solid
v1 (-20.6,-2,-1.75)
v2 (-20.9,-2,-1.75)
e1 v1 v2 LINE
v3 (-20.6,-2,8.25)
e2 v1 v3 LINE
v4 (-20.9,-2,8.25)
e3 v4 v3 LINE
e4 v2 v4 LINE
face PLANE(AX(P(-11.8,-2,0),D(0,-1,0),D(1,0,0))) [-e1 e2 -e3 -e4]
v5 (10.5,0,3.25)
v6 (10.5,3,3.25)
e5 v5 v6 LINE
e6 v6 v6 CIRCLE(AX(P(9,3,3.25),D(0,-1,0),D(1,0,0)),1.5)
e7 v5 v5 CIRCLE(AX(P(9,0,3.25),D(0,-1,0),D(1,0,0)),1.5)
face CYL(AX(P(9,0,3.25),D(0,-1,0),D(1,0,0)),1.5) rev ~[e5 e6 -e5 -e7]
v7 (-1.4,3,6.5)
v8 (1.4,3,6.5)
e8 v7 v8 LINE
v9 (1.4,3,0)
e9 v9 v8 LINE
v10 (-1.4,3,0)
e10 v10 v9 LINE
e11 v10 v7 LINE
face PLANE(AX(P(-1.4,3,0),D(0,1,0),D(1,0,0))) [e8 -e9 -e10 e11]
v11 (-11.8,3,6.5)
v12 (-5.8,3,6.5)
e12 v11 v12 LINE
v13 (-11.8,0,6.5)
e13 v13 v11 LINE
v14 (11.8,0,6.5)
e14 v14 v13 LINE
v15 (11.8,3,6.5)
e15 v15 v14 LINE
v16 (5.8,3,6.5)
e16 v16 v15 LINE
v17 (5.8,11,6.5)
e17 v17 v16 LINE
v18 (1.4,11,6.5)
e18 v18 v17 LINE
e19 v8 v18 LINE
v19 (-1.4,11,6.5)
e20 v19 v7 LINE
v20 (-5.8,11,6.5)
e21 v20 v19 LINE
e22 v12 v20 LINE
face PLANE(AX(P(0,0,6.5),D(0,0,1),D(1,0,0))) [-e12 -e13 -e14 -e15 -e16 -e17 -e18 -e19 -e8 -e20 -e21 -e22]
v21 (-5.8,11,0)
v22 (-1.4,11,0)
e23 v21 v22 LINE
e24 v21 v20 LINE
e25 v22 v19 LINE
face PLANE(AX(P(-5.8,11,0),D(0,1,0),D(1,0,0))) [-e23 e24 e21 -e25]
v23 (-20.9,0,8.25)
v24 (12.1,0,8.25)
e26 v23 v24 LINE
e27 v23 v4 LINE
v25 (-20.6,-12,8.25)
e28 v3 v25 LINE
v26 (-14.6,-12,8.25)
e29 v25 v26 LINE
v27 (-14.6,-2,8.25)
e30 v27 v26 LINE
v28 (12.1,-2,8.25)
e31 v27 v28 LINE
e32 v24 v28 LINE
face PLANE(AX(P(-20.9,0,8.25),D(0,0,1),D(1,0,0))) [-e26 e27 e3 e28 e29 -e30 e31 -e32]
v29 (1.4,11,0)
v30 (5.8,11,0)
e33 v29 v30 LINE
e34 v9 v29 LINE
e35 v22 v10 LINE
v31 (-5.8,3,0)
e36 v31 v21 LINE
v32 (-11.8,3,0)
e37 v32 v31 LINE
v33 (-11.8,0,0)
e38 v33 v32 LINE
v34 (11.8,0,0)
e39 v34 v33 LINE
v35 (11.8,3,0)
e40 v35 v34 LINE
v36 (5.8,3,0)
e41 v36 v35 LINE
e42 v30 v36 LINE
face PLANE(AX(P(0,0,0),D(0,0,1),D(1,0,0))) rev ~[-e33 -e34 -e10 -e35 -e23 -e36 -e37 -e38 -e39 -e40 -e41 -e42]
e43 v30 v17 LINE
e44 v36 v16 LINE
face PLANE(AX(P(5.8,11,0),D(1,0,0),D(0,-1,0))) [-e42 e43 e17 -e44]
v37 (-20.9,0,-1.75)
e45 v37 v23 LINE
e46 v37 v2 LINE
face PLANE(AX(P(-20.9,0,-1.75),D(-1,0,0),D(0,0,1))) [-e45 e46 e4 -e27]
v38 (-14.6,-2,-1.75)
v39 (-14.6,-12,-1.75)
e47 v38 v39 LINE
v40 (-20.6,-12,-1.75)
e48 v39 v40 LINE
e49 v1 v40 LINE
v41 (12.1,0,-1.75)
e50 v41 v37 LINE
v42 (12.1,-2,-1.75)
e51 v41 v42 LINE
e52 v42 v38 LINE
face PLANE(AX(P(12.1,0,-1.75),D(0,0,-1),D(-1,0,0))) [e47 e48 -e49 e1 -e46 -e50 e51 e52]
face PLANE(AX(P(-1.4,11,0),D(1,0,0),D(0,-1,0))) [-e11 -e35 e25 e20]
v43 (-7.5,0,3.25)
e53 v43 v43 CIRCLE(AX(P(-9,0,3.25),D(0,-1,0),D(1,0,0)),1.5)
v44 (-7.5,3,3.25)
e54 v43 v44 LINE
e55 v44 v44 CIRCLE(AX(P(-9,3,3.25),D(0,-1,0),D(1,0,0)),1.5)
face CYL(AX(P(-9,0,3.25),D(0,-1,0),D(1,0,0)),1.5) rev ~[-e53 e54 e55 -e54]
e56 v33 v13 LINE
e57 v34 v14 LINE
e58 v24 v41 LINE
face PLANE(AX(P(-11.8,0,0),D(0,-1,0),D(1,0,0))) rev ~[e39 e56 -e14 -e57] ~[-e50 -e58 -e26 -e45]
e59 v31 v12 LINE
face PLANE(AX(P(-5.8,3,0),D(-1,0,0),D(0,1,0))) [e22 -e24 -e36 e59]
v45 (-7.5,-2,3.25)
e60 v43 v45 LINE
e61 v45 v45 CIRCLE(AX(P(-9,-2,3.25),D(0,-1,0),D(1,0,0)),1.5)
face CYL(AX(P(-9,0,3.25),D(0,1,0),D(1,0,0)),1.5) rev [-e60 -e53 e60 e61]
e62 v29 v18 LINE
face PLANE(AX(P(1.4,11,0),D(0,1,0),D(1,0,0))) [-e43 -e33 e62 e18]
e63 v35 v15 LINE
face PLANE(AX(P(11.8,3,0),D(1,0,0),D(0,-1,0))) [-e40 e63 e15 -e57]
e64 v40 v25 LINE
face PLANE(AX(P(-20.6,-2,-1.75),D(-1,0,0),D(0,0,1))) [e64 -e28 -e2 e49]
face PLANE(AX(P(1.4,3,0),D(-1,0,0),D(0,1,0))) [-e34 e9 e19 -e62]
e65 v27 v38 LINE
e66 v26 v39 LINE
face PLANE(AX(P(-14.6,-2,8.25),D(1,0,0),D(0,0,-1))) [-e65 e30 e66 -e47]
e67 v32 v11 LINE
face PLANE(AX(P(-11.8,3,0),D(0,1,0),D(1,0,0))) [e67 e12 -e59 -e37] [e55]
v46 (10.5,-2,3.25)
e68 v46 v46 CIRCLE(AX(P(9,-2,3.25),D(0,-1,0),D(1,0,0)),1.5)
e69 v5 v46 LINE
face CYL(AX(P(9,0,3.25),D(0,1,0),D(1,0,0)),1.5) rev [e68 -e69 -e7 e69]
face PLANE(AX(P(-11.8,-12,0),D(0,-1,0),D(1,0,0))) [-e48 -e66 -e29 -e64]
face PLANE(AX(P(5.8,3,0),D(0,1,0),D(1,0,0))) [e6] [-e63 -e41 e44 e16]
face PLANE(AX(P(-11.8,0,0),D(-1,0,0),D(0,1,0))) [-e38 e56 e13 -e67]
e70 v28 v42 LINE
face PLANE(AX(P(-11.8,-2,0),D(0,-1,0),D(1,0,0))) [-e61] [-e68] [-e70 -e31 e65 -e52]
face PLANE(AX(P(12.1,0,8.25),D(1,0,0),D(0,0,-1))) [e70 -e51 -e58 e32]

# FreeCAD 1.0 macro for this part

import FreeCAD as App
import Part
import Sketcher

doc = App.newDocument("Part")
params = doc.addObject("Spreadsheet::Sheet", "Params")
for row, (alias, value) in enumerate([
    ("sketch1_width", "6 mm"),
    ("sketch1_height", "3 mm"),
    ("sketch1_height2", "8 mm"),
    ("sketch1_width2", "4.4 mm"),
    ("sketch1_width3", "2.8 mm"),
    ("pad1_length", "6.5 mm"),
    ("sketch2_diameter", "3 mm"),
    ("sketch3_width", "33 mm"),
    ("sketch3_height", "10 mm"),
    ("sketch3_diameter", "3 mm"),
    ("pad2_length", "2 mm"),
    ("sketch4_width", "6 mm"),
    ("sketch4_height", "10 mm"),
    ("pad3_length", "10 mm"),
], start=1):
    params.set(f"A{row}", alias)
    params.set(f"B{row}", "=" + value)
    params.setAlias(f"B{row}", alias)

body = doc.addObject("PartDesign::Body", "Body")

# Sketch on XY plane
sketch1 = doc.addObject("Sketcher::SketchObject", "Sketch")
body.addObject(sketch1)
sketch1.AttachmentSupport = (doc.XY_Plane, [""])
sketch1.MapMode = "FlatFace"
sketch1.addGeometry([
    Part.LineSegment(App.Vector(-11.8, 3, 0), App.Vector(-11.8, 0, 0)),  # 0
    Part.LineSegment(App.Vector(-11.8, 0, 0), App.Vector(11.8, 0, 0)),  # 1
    Part.LineSegment(App.Vector(11.8, 0, 0), App.Vector(11.8, 3, 0)),  # 2
    Part.LineSegment(App.Vector(11.8, 3, 0), App.Vector(5.8, 3, 0)),  # 3
    Part.LineSegment(App.Vector(5.8, 3, 0), App.Vector(5.8, 11, 0)),  # 4
    Part.LineSegment(App.Vector(5.8, 11, 0), App.Vector(1.4, 11, 0)),  # 5
    Part.LineSegment(App.Vector(1.4, 11, 0), App.Vector(1.4, 3, 0)),  # 6
    Part.LineSegment(App.Vector(1.4, 3, 0), App.Vector(-1.4, 3, 0)),  # 7
    Part.LineSegment(App.Vector(-1.4, 3, 0), App.Vector(-1.4, 11, 0)),  # 8
    Part.LineSegment(App.Vector(-1.4, 11, 0), App.Vector(-5.8, 11, 0)),  # 9
    Part.LineSegment(App.Vector(-5.8, 11, 0), App.Vector(-5.8, 3, 0)),  # 10
    Part.LineSegment(App.Vector(-5.8, 3, 0), App.Vector(-11.8, 3, 0)),  # 11
], False)
sketch1.addConstraint([
    Sketcher.Constraint("Coincident", 0, 2, 1, 1),
    Sketcher.Constraint("Coincident", 1, 2, 2, 1),
    Sketcher.Constraint("Coincident", 2, 2, 3, 1),
    Sketcher.Constraint("Coincident", 3, 2, 4, 1),
    Sketcher.Constraint("Coincident", 4, 2, 5, 1),
    Sketcher.Constraint("Coincident", 5, 2, 6, 1),
    Sketcher.Constraint("Coincident", 6, 2, 7, 1),
    Sketcher.Constraint("Coincident", 7, 2, 8, 1),
    Sketcher.Constraint("Coincident", 8, 2, 9, 1),
    Sketcher.Constraint("Coincident", 9, 2, 10, 1),
    Sketcher.Constraint("Coincident", 10, 2, 11, 1),
    Sketcher.Constraint("Coincident", 11, 2, 0, 1),
    Sketcher.Constraint("Vertical", 0),
    Sketcher.Constraint("Horizontal", 1),
    Sketcher.Constraint("Vertical", 2),
    Sketcher.Constraint("Horizontal", 3),
    Sketcher.Constraint("Vertical", 4),
    Sketcher.Constraint("Horizontal", 5),
    Sketcher.Constraint("Vertical", 6),
    Sketcher.Constraint("Horizontal", 7),
    Sketcher.Constraint("Vertical", 8),
    Sketcher.Constraint("Horizontal", 9),
    Sketcher.Constraint("Vertical", 10),
    Sketcher.Constraint("Horizontal", 11),
    Sketcher.Constraint("Symmetric", 0, 2, 1, 2, -1, 1),
    Sketcher.Constraint("Symmetric", 5, 2, 8, 2, -2),
    Sketcher.Constraint("Symmetric", 3, 2, 10, 2, -2),
    Sketcher.Constraint("Horizontal", 3, 2, 6, 2),
    Sketcher.Constraint("DistanceX", 3, 2, 3, 1, 6.0),
    Sketcher.Constraint("DistanceY", 0, 2, 0, 1, 3.0),
    Sketcher.Constraint("DistanceY", 4, 1, 4, 2, 8.0),
    Sketcher.Constraint("DistanceX", 5, 2, 5, 1, 4.4),
    Sketcher.Constraint("DistanceX", 7, 2, 7, 1, 2.8),
])
sketch1.setExpression("Constraints[28]", "Params.sketch1_width")
sketch1.setExpression("Constraints[29]", "Params.sketch1_height")
sketch1.setExpression("Constraints[30]", "Params.sketch1_height2")
sketch1.setExpression("Constraints[31]", "Params.sketch1_width2")
sketch1.setExpression("Constraints[32]", "Params.sketch1_width3")
pad1 = doc.addObject("PartDesign::Pad", "Pad")
body.addObject(pad1)
pad1.Profile = sketch1
pad1.setExpression("Length", "Params.pad1_length")

# Sketch on XZ plane
sketch2 = doc.addObject("Sketcher::SketchObject", "Sketch001")
body.addObject(sketch2)
sketch2.AttachmentSupport = (doc.XZ_Plane, [""])
sketch2.MapMode = "FlatFace"
sketch2.addGeometry([
    Part.Circle(App.Vector(-9, 3.2, 0), App.Vector(0, 0, 1), 1.5),
    Part.Circle(App.Vector(9, 3.2, 0), App.Vector(0, 0, 1), 1.5),
], False)
sketch2.addConstraint([
    Sketcher.Constraint("Equal", 0, 1),
    Sketcher.Constraint("Symmetric", 0, 3, 1, 3, -2),
    Sketcher.Constraint("Diameter", 0, 3.0),
    Sketcher.Constraint("DistanceX", 0, 3, 1, 3, 18.0),
    Sketcher.Constraint("DistanceY", -1, 1, 0, 3, 3.25),
])
sketch2.setExpression("Constraints[2]", "Params.sketch2_diameter")
pocket1 = doc.addObject("PartDesign::Pocket", "Pocket")
body.addObject(pocket1)
pocket1.Profile = sketch2
pocket1.Type = "ThroughAll"

# Sketch on XZ plane
sketch3 = doc.addObject("Sketcher::SketchObject", "Sketch002")
body.addObject(sketch3)
sketch3.AttachmentSupport = (doc.XZ_Plane, [""])
sketch3.MapMode = "FlatFace"
sketch3.addGeometry([
    Part.LineSegment(App.Vector(12.1, 8.2, 0), App.Vector(-20.9, 8.2, 0)),  # 0
    Part.LineSegment(App.Vector(-20.9, 8.2, 0), App.Vector(-20.9, -1.8, 0)),  # 1
    Part.LineSegment(App.Vector(-20.9, -1.8, 0), App.Vector(12.1, -1.8, 0)),  # 2
    Part.LineSegment(App.Vector(12.1, -1.8, 0), App.Vector(12.1, 8.2, 0)),  # 3
    Part.Circle(App.Vector(-9, 3.2, 0), App.Vector(0, 0, 1), 1.5),  # 4
    Part.Circle(App.Vector(9, 3.2, 0), App.Vector(0, 0, 1), 1.5),  # 5
], False)
sketch3.addConstraint([
    Sketcher.Constraint("Coincident", 0, 2, 1, 1),
    Sketcher.Constraint("Coincident", 1, 2, 2, 1),
    Sketcher.Constraint("Coincident", 2, 2, 3, 1),
    Sketcher.Constraint("Coincident", 3, 2, 0, 1),
    Sketcher.Constraint("Horizontal", 0),
    Sketcher.Constraint("Vertical", 1),
    Sketcher.Constraint("Horizontal", 2),
    Sketcher.Constraint("Vertical", 3),
    Sketcher.Constraint("Equal", 4, 5),
    Sketcher.Constraint("Symmetric", 4, 3, 5, 3, -2),
    Sketcher.Constraint("DistanceX", 0, 2, 0, 1, 33.0),
    Sketcher.Constraint("DistanceY", 1, 2, 1, 1, 10.0),
    Sketcher.Constraint("Diameter", 4, 3.0),
    Sketcher.Constraint("DistanceY", 1, 2, -1, 1, 1.75),
    Sketcher.Constraint("DistanceX", 4, 3, -1, 1, 9.0),
    Sketcher.Constraint("DistanceY", 4, 3, 0, 2, 5.0),
    Sketcher.Constraint("DistanceX", 0, 2, -1, 1, 20.9),
])
sketch3.setExpression("Constraints[10]", "Params.sketch3_width")
sketch3.setExpression("Constraints[11]", "Params.sketch3_height")
sketch3.setExpression("Constraints[12]", "Params.sketch3_diameter")
pad2 = doc.addObject("PartDesign::Pad", "Pad001")
body.addObject(pad2)
pad2.Profile = sketch3
pad2.setExpression("Length", "Params.pad2_length")

# Sketch on XZ plane
sketch4 = doc.addObject("Sketcher::SketchObject", "Sketch003")
body.addObject(sketch4)
sketch4.AttachmentSupport = (doc.XZ_Plane, [""])
sketch4.MapMode = "FlatFace"
sketch4.AttachmentOffset = App.Placement(App.Vector(0, 0, 2), App.Rotation())
sketch4.addGeometry([
    Part.LineSegment(App.Vector(-15, 8, 0), App.Vector(-21, 8, 0)),
    Part.LineSegment(App.Vector(-21, 8, 0), App.Vector(-21, -2, 0)),
    Part.LineSegment(App.Vector(-21, -2, 0), App.Vector(-15, -2, 0)),
    Part.LineSegment(App.Vector(-15, -2, 0), App.Vector(-15, 8, 0)),
], False)
sketch4.addConstraint([
    Sketcher.Constraint("Coincident", 0, 2, 1, 1),
    Sketcher.Constraint("Coincident", 1, 2, 2, 1),
    Sketcher.Constraint("Coincident", 2, 2, 3, 1),
    Sketcher.Constraint("Coincident", 3, 2, 0, 1),
    Sketcher.Constraint("Horizontal", 0),
    Sketcher.Constraint("Vertical", 1),
    Sketcher.Constraint("Horizontal", 2),
    Sketcher.Constraint("Vertical", 3),
    Sketcher.Constraint("DistanceX", 0, 2, 0, 1, 6.0),
    Sketcher.Constraint("DistanceY", 1, 2, 1, 1, 10.0),
    Sketcher.Constraint("DistanceX", 0, 2, -1, 1, 20.6),
    Sketcher.Constraint("DistanceY", -1, 1, 0, 2, 8.25),
])
sketch4.setExpression("Constraints[8]", "Params.sketch4_width")
sketch4.setExpression("Constraints[9]", "Params.sketch4_height")
pad3 = doc.addObject("PartDesign::Pad", "Pad002")
body.addObject(pad3)
pad3.Profile = sketch4
pad3.setExpression("Length", "Params.pad3_length")

doc.recompute()
